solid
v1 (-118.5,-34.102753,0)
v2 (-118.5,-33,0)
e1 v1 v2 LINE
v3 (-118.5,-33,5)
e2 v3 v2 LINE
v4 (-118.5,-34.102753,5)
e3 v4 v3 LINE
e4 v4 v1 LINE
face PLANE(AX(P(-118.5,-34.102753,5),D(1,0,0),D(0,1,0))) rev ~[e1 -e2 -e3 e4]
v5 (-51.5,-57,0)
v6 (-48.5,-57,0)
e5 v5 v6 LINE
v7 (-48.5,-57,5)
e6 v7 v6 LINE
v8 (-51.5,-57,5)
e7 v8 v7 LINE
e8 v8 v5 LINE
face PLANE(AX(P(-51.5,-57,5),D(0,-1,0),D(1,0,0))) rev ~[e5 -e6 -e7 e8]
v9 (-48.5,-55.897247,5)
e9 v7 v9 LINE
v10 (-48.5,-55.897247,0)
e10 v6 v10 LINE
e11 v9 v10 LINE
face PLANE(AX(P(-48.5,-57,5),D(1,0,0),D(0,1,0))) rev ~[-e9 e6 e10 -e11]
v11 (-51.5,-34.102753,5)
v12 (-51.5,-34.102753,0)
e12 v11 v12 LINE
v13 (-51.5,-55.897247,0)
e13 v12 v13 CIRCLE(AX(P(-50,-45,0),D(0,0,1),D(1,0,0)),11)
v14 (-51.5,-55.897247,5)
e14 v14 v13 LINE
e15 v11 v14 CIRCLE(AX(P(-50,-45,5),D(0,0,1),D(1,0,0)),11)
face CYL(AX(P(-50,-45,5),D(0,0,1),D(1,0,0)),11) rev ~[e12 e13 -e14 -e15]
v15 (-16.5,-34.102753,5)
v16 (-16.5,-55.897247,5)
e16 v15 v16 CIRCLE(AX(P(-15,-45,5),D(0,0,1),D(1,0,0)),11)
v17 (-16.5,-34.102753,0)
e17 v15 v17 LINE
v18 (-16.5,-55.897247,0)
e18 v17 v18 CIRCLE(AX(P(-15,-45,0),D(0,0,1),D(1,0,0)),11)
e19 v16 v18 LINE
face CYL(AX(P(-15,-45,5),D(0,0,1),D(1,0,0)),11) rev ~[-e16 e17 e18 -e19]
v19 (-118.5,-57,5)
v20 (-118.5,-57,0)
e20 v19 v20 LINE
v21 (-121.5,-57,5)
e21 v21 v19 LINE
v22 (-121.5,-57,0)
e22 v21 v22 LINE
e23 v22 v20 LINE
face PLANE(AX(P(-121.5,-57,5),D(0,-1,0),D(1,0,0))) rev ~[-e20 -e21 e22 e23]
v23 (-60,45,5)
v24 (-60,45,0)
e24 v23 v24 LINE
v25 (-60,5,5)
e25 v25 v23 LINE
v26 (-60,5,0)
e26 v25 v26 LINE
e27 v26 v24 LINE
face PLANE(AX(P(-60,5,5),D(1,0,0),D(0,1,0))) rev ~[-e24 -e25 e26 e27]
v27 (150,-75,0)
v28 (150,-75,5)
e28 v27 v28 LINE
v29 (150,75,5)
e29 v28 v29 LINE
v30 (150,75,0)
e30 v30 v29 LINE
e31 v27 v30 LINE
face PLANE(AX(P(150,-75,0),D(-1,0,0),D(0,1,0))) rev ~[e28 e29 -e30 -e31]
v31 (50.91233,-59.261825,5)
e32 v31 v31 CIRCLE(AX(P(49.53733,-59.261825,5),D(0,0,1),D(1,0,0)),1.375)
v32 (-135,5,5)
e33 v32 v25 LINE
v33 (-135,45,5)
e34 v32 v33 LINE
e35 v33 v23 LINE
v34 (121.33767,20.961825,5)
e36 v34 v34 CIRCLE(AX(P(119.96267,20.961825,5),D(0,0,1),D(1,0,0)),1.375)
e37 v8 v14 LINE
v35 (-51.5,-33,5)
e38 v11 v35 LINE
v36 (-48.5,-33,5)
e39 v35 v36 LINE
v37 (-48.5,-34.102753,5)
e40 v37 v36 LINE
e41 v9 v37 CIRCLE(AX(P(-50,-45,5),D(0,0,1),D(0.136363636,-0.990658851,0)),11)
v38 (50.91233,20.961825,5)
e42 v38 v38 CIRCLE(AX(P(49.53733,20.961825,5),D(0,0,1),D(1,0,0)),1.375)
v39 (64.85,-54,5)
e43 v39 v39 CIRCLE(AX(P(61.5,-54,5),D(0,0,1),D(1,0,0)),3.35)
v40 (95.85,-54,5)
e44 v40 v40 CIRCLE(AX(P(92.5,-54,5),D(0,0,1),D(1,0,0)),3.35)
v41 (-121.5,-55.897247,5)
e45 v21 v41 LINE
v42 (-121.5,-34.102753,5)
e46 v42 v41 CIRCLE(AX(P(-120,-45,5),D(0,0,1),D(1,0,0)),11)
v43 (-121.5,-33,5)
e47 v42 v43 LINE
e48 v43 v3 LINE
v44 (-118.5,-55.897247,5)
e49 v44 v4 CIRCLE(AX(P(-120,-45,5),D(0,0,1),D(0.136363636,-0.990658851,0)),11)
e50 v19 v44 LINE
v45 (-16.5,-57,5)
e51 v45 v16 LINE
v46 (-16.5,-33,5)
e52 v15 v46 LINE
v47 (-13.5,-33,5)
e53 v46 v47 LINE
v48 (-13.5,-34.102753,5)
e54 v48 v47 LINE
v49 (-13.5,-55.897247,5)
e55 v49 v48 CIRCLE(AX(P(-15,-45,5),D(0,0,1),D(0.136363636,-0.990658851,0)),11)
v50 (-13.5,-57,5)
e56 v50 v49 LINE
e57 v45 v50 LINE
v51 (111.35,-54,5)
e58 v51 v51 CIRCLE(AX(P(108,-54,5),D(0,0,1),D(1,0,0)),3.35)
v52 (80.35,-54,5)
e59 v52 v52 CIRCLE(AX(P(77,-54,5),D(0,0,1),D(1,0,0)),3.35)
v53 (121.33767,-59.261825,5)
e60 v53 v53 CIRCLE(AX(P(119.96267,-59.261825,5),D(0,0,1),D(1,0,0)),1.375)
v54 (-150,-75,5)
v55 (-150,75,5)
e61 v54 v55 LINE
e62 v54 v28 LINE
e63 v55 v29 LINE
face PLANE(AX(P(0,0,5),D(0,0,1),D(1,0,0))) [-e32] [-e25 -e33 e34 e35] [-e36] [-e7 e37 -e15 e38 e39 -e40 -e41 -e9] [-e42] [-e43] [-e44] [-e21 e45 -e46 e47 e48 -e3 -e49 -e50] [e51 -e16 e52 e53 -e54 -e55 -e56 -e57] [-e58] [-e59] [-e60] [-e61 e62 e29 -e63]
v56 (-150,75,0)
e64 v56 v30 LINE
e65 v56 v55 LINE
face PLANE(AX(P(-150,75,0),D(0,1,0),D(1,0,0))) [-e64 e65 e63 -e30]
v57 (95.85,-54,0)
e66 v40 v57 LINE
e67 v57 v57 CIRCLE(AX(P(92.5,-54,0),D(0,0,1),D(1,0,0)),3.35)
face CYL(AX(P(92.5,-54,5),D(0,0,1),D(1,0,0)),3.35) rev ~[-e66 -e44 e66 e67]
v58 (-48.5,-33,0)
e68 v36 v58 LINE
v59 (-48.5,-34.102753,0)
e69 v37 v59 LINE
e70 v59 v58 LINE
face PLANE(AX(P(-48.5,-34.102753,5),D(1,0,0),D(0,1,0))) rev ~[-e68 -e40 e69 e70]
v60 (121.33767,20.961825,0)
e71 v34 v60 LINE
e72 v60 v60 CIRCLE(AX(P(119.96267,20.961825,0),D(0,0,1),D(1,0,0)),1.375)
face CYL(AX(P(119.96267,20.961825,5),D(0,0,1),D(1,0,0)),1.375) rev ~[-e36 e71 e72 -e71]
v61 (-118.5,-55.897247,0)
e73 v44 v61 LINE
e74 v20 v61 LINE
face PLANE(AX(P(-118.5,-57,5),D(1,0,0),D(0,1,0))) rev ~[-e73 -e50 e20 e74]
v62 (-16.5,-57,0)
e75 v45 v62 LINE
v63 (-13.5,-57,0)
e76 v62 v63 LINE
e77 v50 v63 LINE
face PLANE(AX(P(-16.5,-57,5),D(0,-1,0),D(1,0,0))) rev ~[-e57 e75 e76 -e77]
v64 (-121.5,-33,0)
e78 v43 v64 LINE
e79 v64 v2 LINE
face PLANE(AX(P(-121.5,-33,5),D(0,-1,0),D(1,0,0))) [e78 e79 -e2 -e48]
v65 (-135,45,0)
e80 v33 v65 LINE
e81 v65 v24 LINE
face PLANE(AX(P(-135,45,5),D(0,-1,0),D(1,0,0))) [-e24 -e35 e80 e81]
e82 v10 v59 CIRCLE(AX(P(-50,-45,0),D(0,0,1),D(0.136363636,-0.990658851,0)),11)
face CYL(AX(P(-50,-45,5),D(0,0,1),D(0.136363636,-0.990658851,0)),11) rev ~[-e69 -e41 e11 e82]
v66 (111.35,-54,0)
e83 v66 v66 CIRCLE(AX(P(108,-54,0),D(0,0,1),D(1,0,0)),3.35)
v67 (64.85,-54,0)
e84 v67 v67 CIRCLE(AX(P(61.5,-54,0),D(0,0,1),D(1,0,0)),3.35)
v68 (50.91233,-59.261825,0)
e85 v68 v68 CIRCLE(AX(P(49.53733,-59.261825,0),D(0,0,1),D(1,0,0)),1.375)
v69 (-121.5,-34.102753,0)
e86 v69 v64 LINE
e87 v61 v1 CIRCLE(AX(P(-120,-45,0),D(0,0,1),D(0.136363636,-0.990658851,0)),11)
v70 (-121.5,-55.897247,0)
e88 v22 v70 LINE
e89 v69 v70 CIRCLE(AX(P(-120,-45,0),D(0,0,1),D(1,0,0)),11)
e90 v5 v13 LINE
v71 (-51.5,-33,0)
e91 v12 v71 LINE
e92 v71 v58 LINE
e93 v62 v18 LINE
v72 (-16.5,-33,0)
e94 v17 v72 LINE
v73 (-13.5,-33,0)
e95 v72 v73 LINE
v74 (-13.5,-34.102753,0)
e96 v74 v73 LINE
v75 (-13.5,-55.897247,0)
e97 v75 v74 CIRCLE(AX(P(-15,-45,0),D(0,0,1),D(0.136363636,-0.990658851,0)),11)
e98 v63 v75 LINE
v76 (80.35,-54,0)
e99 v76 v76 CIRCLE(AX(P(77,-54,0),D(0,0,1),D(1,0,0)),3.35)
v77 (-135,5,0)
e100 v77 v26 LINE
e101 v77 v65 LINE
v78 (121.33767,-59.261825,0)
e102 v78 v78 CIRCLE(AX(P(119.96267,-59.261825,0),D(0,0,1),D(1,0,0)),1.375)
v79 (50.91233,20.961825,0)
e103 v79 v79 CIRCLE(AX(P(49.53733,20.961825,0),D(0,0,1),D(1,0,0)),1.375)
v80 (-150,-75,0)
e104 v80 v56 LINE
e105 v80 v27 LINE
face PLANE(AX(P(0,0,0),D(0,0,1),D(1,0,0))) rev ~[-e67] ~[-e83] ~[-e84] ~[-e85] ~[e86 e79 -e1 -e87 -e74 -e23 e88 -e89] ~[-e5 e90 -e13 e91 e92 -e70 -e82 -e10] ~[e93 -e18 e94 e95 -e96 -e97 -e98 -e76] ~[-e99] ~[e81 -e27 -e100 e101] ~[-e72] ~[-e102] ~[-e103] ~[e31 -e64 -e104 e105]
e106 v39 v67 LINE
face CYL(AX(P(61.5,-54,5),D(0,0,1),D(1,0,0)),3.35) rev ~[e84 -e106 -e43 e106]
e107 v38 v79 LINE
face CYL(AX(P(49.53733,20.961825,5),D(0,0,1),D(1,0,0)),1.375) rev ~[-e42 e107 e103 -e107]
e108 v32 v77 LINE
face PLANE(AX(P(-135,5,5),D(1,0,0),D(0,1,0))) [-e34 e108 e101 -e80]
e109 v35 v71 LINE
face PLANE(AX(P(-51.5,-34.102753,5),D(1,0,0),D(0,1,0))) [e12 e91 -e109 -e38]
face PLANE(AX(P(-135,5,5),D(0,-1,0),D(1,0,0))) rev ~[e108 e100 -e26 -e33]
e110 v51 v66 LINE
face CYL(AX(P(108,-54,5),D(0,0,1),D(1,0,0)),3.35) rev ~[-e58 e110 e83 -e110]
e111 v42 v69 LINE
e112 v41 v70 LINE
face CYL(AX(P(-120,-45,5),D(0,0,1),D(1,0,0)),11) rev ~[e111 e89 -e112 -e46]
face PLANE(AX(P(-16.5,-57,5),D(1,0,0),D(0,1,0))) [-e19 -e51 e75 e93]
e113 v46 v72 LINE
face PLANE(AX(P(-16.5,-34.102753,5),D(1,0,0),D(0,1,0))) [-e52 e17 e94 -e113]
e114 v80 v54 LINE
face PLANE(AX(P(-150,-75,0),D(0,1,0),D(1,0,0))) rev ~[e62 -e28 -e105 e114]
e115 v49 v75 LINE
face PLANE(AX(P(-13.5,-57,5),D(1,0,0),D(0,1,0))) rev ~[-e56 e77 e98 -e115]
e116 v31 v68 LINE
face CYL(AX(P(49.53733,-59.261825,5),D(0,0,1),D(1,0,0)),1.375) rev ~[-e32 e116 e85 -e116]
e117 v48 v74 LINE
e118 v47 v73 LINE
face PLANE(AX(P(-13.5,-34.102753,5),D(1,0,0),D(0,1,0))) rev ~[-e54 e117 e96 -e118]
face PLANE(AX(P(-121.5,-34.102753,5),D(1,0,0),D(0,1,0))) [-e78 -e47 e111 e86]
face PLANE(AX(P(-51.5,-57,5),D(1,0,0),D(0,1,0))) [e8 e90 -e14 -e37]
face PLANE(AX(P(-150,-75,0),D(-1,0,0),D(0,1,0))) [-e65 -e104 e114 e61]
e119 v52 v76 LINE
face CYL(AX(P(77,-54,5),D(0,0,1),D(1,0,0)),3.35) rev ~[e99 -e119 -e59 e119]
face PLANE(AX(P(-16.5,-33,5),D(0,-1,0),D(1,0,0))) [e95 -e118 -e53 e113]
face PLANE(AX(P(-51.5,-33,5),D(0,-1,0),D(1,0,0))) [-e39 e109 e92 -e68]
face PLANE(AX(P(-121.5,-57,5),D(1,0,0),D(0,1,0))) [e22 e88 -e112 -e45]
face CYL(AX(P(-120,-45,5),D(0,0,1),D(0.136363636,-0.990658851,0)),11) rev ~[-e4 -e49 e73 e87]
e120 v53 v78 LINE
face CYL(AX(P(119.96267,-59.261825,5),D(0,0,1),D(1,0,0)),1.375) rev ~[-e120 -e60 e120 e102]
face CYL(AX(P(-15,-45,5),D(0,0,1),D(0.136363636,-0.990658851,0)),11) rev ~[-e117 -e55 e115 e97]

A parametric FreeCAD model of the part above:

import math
import FreeCAD as App
import Part
import Sketcher
Q = App.Units.Quantity

doc = App.newDocument("Part")
body = doc.addObject("PartDesign::Body", "Body")

# Sketch on XY plane
sketch1 = body.newObject("Sketcher::SketchObject", "Sketch")
sketch1.AttachmentSupport = (doc.getObject("XY_Plane"), [""])
sketch1.MapMode = "FlatFace"
sketch1.addGeometry([
    Part.LineSegment(App.Vector(-150, 75, 0), App.Vector(-150, -75, 0)),
    Part.LineSegment(App.Vector(-150, -75, 0), App.Vector(150, -75, 0)),
    Part.LineSegment(App.Vector(150, -75, 0), App.Vector(150, 75, 0)),
    Part.LineSegment(App.Vector(150, 75, 0), App.Vector(-150, 75, 0)),
], False)
sketch1.addConstraint([
    Sketcher.Constraint("Coincident", 0, 2, 1, 1),
    Sketcher.Constraint("Coincident", 1, 2, 2, 1),
    Sketcher.Constraint("Coincident", 2, 2, 3, 1),
    Sketcher.Constraint("Coincident", 3, 2, 0, 1),
    Sketcher.Constraint("Vertical", 0),
    Sketcher.Constraint("Horizontal", 1),
    Sketcher.Constraint("Vertical", 2),
    Sketcher.Constraint("Horizontal", 3),
    Sketcher.Constraint("Symmetric", 0, 2, 2, 2, -1, 1),
    Sketcher.Constraint("DistanceX", 1, 1, 1, 2, Q("300 mm")),
    Sketcher.Constraint("DistanceY", 0, 2, 0, 1, Q("150 mm")),
])
pad1 = body.newObject("PartDesign::Pad", "Pad")
pad1.Profile = sketch1
pad1.Length = 5

# Sketch on XY plane
sketch2 = body.newObject("Sketcher::SketchObject", "Sketch001")
sketch2.AttachmentSupport = (doc.getObject("XY_Plane"), [""])
sketch2.MapMode = "FlatFace"
sketch2.AttachmentOffset = App.Placement(App.Vector(0, 0, 5), App.Rotation())
sketch2.addGeometry([
    Part.LineSegment(App.Vector(-135, 45, 0), App.Vector(-135, 5, 0)),
    Part.LineSegment(App.Vector(-135, 5, 0), App.Vector(-60, 5, 0)),
    Part.LineSegment(App.Vector(-60, 5, 0), App.Vector(-60, 45, 0)),
    Part.LineSegment(App.Vector(-60, 45, 0), App.Vector(-135, 45, 0)),
], False)
sketch2.addConstraint([
    Sketcher.Constraint("Coincident", 0, 2, 1, 1),
    Sketcher.Constraint("Coincident", 1, 2, 2, 1),
    Sketcher.Constraint("Coincident", 2, 2, 3, 1),
    Sketcher.Constraint("Coincident", 3, 2, 0, 1),
    Sketcher.Constraint("Vertical", 0),
    Sketcher.Constraint("Horizontal", 1),
    Sketcher.Constraint("Vertical", 2),
    Sketcher.Constraint("Horizontal", 3),
    Sketcher.Constraint("DistanceX", 1, 1, 1, 2, Q("75 mm")),
    Sketcher.Constraint("DistanceY", 0, 2, 0, 1, Q("40 mm")),
    Sketcher.Constraint("DistanceX", 0, 2, -1, 1, Q("135 mm")),
    Sketcher.Constraint("DistanceY", -1, 1, 0, 2, Q("5 mm")),
])
pocket1 = body.newObject("PartDesign::Pocket", "Pocket")
pocket1.Profile = sketch2
pocket1.Type = "ThroughAll"

# Sketch on XY plane
sketch3 = body.newObject("Sketcher::SketchObject", "Sketch002")
sketch3.AttachmentSupport = (doc.getObject("XY_Plane"), [""])
sketch3.MapMode = "FlatFace"
sketch3.AttachmentOffset = App.Placement(App.Vector(0, 0, 5), App.Rotation())
sketch3.addGeometry([
    Part.ArcOfCircle(Part.Circle(App.Vector(-15, -45, 0), App.Vector(0, 0, 1), 11), math.radians(-82), math.radians(82)),  # 0
    Part.LineSegment(App.Vector(-13.5, -34.1, 0), App.Vector(-13.5, -33, 0)),  # 1
    Part.LineSegment(App.Vector(-13.5, -33, 0), App.Vector(-16.5, -33, 0)),  # 2
    Part.LineSegment(App.Vector(-16.5, -33, 0), App.Vector(-16.5, -34.1, 0)),  # 3
    Part.ArcOfCircle(Part.Circle(App.Vector(-15, -45, 0), App.Vector(0, 0, 1), 11), math.radians(98), math.radians(262)),  # 4
    Part.LineSegment(App.Vector(-16.5, -55.9, 0), App.Vector(-16.5, -57, 0)),  # 5
    Part.LineSegment(App.Vector(-16.5, -57, 0), App.Vector(-13.5, -57, 0)),  # 6
    Part.LineSegment(App.Vector(-13.5, -57, 0), App.Vector(-13.5, -55.9, 0)),  # 7
    Part.ArcOfCircle(Part.Circle(App.Vector(-50, -45, 0), App.Vector(0, 0, 1), 11), math.radians(-82), math.radians(82)),  # 8
    Part.LineSegment(App.Vector(-48.5, -34.1, 0), App.Vector(-48.5, -33, 0)),  # 9
    Part.LineSegment(App.Vector(-48.5, -33, 0), App.Vector(-51.5, -33, 0)),  # 10
    Part.LineSegment(App.Vector(-51.5, -33, 0), App.Vector(-51.5, -34.1, 0)),  # 11
    Part.ArcOfCircle(Part.Circle(App.Vector(-50, -45, 0), App.Vector(0, 0, 1), 11), math.radians(98), math.radians(262)),  # 12
    Part.LineSegment(App.Vector(-51.5, -55.9, 0), App.Vector(-51.5, -57, 0)),  # 13
    Part.LineSegment(App.Vector(-51.5, -57, 0), App.Vector(-48.5, -57, 0)),  # 14
    Part.LineSegment(App.Vector(-48.5, -57, 0), App.Vector(-48.5, -55.9, 0)),  # 15
    Part.ArcOfCircle(Part.Circle(App.Vector(-120, -45, 0), App.Vector(0, 0, 1), 11), math.radians(-82), math.radians(82)),  # 16
    Part.LineSegment(App.Vector(-118.5, -34.1, 0), App.Vector(-118.5, -33, 0)),  # 17
    Part.LineSegment(App.Vector(-118.5, -33, 0), App.Vector(-121.5, -33, 0)),  # 18
    Part.LineSegment(App.Vector(-121.5, -33, 0), App.Vector(-121.5, -34.1, 0)),  # 19
    Part.ArcOfCircle(Part.Circle(App.Vector(-120, -45, 0), App.Vector(0, 0, 1), 11), math.radians(98), math.radians(262)),  # 20
    Part.LineSegment(App.Vector(-121.5, -55.9, 0), App.Vector(-121.5, -57, 0)),  # 21
    Part.LineSegment(App.Vector(-121.5, -57, 0), App.Vector(-118.5, -57, 0)),  # 22
    Part.LineSegment(App.Vector(-118.5, -57, 0), App.Vector(-118.5, -55.9, 0)),  # 23
], False)
sketch3.addConstraint([
    Sketcher.Constraint("Coincident", 0, 2, 1, 1),
    Sketcher.Constraint("Coincident", 1, 2, 2, 1),
    Sketcher.Constraint("Coincident", 2, 2, 3, 1),
    Sketcher.Constraint("Coincident", 3, 2, 4, 1),
    Sketcher.Constraint("Coincident", 4, 2, 5, 1),
    Sketcher.Constraint("Coincident", 5, 2, 6, 1),
    Sketcher.Constraint("Coincident", 6, 2, 7, 1),
    Sketcher.Constraint("Coincident", 7, 2, 0, 1),
    Sketcher.Constraint("Coincident", 8, 2, 9, 1),
    Sketcher.Constraint("Coincident", 9, 2, 10, 1),
    Sketcher.Constraint("Coincident", 10, 2, 11, 1),
    Sketcher.Constraint("Coincident", 11, 2, 12, 1),
    Sketcher.Constraint("Coincident", 12, 2, 13, 1),
    Sketcher.Constraint("Coincident", 13, 2, 14, 1),
    Sketcher.Constraint("Coincident", 14, 2, 15, 1),
    Sketcher.Constraint("Coincident", 15, 2, 8, 1),
    Sketcher.Constraint("Coincident", 16, 2, 17, 1),
    Sketcher.Constraint("Coincident", 17, 2, 18, 1),
    Sketcher.Constraint("Coincident", 18, 2, 19, 1),
    Sketcher.Constraint("Coincident", 19, 2, 20, 1),
    Sketcher.Constraint("Coincident", 20, 2, 21, 1),
    Sketcher.Constraint("Coincident", 21, 2, 22, 1),
    Sketcher.Constraint("Coincident", 22, 2, 23, 1),
    Sketcher.Constraint("Coincident", 23, 2, 16, 1),
    Sketcher.Constraint("Vertical", 1),
    Sketcher.Constraint("Horizontal", 2),
    Sketcher.Constraint("Vertical", 3),
    Sketcher.Constraint("Vertical", 5),
    Sketcher.Constraint("Horizontal", 6),
    Sketcher.Constraint("Vertical", 7),
    Sketcher.Constraint("Vertical", 9),
    Sketcher.Constraint("Horizontal", 10),
    Sketcher.Constraint("Vertical", 11),
    Sketcher.Constraint("Vertical", 13),
    Sketcher.Constraint("Horizontal", 14),
    Sketcher.Constraint("Vertical", 15),
    Sketcher.Constraint("Vertical", 17),
    Sketcher.Constraint("Horizontal", 18),
    Sketcher.Constraint("Vertical", 19),
    Sketcher.Constraint("Vertical", 21),
    Sketcher.Constraint("Horizontal", 22),
    Sketcher.Constraint("Vertical", 23),
    Sketcher.Constraint("Coincident", 4, 3, 0, 3),
    Sketcher.Constraint("Coincident", 12, 3, 8, 3),
    Sketcher.Constraint("Coincident", 20, 3, 16, 3),
    Sketcher.Constraint("Equal", 0, 4),
    Sketcher.Constraint("Equal", 4, 8),
    Sketcher.Constraint("Equal", 8, 12),
    Sketcher.Constraint("Equal", 12, 16),
    Sketcher.Constraint("Equal", 16, 20),
    Sketcher.Constraint("Horizontal", 4, 3, 8, 3),
    Sketcher.Constraint("Horizontal", 12, 3, 16, 3),
    Sketcher.Constraint("Horizontal", 0, 2, 3, 2),
    Sketcher.Constraint("Horizontal", 4, 2, 7, 2),
    Sketcher.Constraint("Horizontal", 3, 2, 8, 2),
    Sketcher.Constraint("Horizontal", 2, 2, 9, 2),
    Sketcher.Constraint("Horizontal", 8, 2, 11, 2),
    Sketcher.Constraint("Horizontal", 7, 2, 12, 2),
    Sketcher.Constraint("Horizontal", 6, 2, 13, 2),
    Sketcher.Constraint("Horizontal", 12, 2, 15, 2),
    Sketcher.Constraint("Horizontal", 11, 2, 16, 2),
    Sketcher.Constraint("Horizontal", 10, 2, 17, 2),
    Sketcher.Constraint("Horizontal", 16, 2, 19, 2),
    Sketcher.Constraint("Horizontal", 15, 2, 20, 2),
    Sketcher.Constraint("Horizontal", 14, 2, 21, 2),
    Sketcher.Constraint("Horizontal", 20, 2, 23, 2),
    Sketcher.Constraint("Vertical", 3, 2, 4, 2),
    Sketcher.Constraint("Equal", 3, 5),
    Sketcher.Constraint("Radius", 0, Q("11 mm")),
    Sketcher.Constraint("DistanceX", 2, 2, 2, 1, Q("3 mm")),
    Sketcher.Constraint("DistanceX", 0, 3, -1, 1, Q("15 mm")),
    Sketcher.Constraint("DistanceY", 0, 3, -1, 1, Q("45 mm")),
    Sketcher.Constraint("DistanceX", 8, 3, -1, 1, Q("50 mm")),
    Sketcher.Constraint("DistanceX", 16, 3, -1, 1, Q("120 mm")),
    Sketcher.Constraint("DistanceY", 1, 2, -1, 1, Q("33 mm")),
])
pocket2 = body.newObject("PartDesign::Pocket", "Pocket001")
pocket2.Profile = sketch3
pocket2.Type = "ThroughAll"

# Sketch on XY plane
sketch4 = body.newObject("Sketcher::SketchObject", "Sketch003")
sketch4.AttachmentSupport = (doc.getObject("XY_Plane"), [""])
sketch4.MapMode = "FlatFace"
sketch4.AttachmentOffset = App.Placement(App.Vector(0, 0, 5), App.Rotation())
sketch4.addGeometry([
    Part.Circle(App.Vector(49.5, 21, 0), App.Vector(0, 0, 1), 1.4),  # 0
    Part.Circle(App.Vector(120, 21, 0), App.Vector(0, 0, 1), 1.4),  # 1
    Part.Circle(App.Vector(120, -59.3, 0), App.Vector(0, 0, 1), 1.4),  # 2
    Part.Circle(App.Vector(49.5, -59.3, 0), App.Vector(0, 0, 1), 1.4),  # 3
    Part.Circle(App.Vector(61.5, -54, 0), App.Vector(0, 0, 1), 3.4),  # 4
    Part.Circle(App.Vector(77, -54, 0), App.Vector(0, 0, 1), 3.4),  # 5
    Part.Circle(App.Vector(92.5, -54, 0), App.Vector(0, 0, 1), 3.4),  # 6
    Part.Circle(App.Vector(108, -54, 0), App.Vector(0, 0, 1), 3.4),  # 7
], False)
sketch4.addConstraint([
    Sketcher.Constraint("Equal", 0, 1),
    Sketcher.Constraint("Equal", 1, 2),
    Sketcher.Constraint("Equal", 2, 3),
    Sketcher.Constraint("Equal", 4, 5),
    Sketcher.Constraint("Equal", 5, 6),
    Sketcher.Constraint("Equal", 6, 7),
    Sketcher.Constraint("Horizontal", 0, 3, 1, 3),
    Sketcher.Constraint("Horizontal", 2, 3, 3, 3),
    Sketcher.Constraint("Horizontal", 4, 3, 5, 3),
    Sketcher.Constraint("Horizontal", 5, 3, 6, 3),
    Sketcher.Constraint("Horizontal", 6, 3, 7, 3),
    Sketcher.Constraint("Vertical", 1, 3, 2, 3),
    Sketcher.Constraint("Vertical", 0, 3, 3, 3),
    Sketcher.Constraint("Diameter", 4, Q("6.7 mm")),
    Sketcher.Constraint("Diameter", 0, Q("2.75 mm")),
    Sketcher.Constraint("DistanceY", 4, 3, -1, 1, Q("54 mm")),
    Sketcher.Constraint("DistanceX", -1, 1, 5, 3, Q("77 mm")),
    Sketcher.Constraint("DistanceX", -1, 1, 7, 3, Q("108 mm")),
    Sketcher.Constraint("DistanceX", 4, 3, 6, 3, Q("31 mm")),
    Sketcher.Constraint("DistanceX", -1, 1, 4, 3, Q("61.5 mm")),
    Sketcher.Constraint("DistanceX", -1, 1, 0, 3, Q("49.53733 mm")),
    Sketcher.Constraint("DistanceX", -1, 1, 1, 3, Q("119.96267 mm")),
    Sketcher.Constraint("DistanceY", 2, 3, 1, 3, Q("80.223649 mm")),
    Sketcher.Constraint("DistanceY", -1, 1, 0, 3, Q("20.961825 mm")),
])
pocket3 = body.newObject("PartDesign::Pocket", "Pocket002")
pocket3.Profile = sketch4
pocket3.Type = "ThroughAll"

doc.recompute()
